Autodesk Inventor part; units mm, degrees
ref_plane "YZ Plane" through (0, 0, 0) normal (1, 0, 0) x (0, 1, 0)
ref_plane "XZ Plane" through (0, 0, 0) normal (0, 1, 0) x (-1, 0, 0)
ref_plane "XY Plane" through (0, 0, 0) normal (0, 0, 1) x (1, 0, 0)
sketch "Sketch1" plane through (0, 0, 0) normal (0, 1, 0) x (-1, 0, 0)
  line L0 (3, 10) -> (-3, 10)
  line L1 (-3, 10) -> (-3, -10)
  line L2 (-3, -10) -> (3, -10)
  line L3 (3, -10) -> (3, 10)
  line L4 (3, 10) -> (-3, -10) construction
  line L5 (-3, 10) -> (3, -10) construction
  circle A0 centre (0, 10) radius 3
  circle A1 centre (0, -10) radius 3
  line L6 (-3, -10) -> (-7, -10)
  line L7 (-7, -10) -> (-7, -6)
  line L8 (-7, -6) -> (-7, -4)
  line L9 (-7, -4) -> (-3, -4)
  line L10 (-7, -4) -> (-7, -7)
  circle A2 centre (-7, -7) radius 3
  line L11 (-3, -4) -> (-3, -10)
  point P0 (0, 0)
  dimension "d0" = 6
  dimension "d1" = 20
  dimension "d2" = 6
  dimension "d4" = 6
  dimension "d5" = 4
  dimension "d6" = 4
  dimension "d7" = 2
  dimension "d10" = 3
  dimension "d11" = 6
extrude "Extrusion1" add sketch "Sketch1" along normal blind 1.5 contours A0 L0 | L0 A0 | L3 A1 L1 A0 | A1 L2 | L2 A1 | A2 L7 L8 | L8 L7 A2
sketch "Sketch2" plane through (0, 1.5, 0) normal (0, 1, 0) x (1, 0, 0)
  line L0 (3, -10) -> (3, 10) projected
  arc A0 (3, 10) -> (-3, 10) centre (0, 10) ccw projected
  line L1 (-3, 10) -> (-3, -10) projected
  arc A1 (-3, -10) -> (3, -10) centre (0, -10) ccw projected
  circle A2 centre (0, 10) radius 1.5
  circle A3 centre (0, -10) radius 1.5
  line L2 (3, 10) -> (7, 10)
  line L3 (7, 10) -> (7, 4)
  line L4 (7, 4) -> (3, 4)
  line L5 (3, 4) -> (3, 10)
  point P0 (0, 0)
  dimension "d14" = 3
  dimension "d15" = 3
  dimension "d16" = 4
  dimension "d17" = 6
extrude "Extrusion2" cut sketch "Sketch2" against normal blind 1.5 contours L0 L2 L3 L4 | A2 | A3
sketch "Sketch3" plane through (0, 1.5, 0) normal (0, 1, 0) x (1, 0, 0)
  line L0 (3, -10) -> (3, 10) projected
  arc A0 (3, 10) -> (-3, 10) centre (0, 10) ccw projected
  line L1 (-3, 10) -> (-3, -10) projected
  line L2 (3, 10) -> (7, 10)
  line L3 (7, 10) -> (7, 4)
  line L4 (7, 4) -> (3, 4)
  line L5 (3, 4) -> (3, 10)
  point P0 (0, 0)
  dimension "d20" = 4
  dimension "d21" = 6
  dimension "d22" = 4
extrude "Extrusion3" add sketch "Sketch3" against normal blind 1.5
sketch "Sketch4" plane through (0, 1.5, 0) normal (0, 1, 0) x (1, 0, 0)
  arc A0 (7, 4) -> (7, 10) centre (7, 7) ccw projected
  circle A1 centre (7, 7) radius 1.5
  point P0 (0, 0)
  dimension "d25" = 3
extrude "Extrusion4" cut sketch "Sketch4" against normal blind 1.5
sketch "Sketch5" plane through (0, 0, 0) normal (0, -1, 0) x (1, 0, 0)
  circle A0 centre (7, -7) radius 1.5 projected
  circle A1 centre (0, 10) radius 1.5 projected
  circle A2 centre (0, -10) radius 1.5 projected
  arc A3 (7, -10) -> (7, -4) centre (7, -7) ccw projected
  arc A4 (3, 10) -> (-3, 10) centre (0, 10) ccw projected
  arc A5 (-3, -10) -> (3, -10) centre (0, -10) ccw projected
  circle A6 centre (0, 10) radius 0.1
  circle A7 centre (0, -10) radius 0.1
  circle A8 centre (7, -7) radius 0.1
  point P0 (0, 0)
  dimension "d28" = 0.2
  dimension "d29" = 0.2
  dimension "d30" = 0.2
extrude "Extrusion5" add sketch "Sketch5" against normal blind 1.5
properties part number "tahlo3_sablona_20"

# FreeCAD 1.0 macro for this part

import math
import FreeCAD as App
import Part
import Sketcher
from FreeCAD import Vector

doc = App.newDocument("Part")
body = doc.addObject("PartDesign::Body", "Body")
body.AllowCompound = True

# Sketch on XZ plane
sketch1 = body.newObject("Sketcher::SketchObject", "Sketch")
sketch1.AttachmentSupport = (doc.getObject("XZ_Plane"), [""])
sketch1.MapMode = "FlatFace"
sketch1.addGeometry([
    Part.LineSegment(Vector(-3, -10, 0), Vector(-3, 10, 0)),  # 0
    Part.ArcOfCircle(Part.Circle(Vector(0, 10, 0), Vector(0, 0, 1), 3), math.radians(0), math.radians(180)),  # 1
    Part.LineSegment(Vector(3, 10, 0), Vector(3, -10, 0)),  # 2
    Part.ArcOfCircle(Part.Circle(Vector(0, -10, 0), Vector(0, 0, 1), 3), math.radians(180), math.radians(360)),  # 3
    Part.Circle(Vector(7, -7, 0), Vector(0, 0, 1), 3),  # 4
], False)
sketch1.addConstraint([
    Sketcher.Constraint("Tangent", 0, 2, 1, 2),
    Sketcher.Constraint("Tangent", 1, 1, 2, 1),
    Sketcher.Constraint("Tangent", 2, 2, 3, 2),
    Sketcher.Constraint("Tangent", 3, 1, 0, 1),
    Sketcher.Constraint("Vertical", 0),
    Sketcher.Constraint("Vertical", 2),
    Sketcher.Constraint("Equal", 3, 4),
    Sketcher.Constraint("Symmetric", 1, 3, 3, 3, -1, 1),
    Sketcher.Constraint("Diameter", 4, 6.0),
    Sketcher.Constraint("DistanceY", 0, 1, 0, 2, 20.0),
    Sketcher.Constraint("DistanceY", 3, 3, 4, 3, 3.0),
    Sketcher.Constraint("DistanceX", 1, 1, 4, 3, 4.0),
])
pad1 = body.newObject("PartDesign::Pad", "Pad")
pad1.Profile = sketch1
pad1.Length = 1.5
pad1.Reversed = True

# Sketch on XZ plane
sketch2 = body.newObject("Sketcher::SketchObject", "Sketch001")
sketch2.AttachmentSupport = (doc.getObject("XZ_Plane"), [""])
sketch2.MapMode = "FlatFace"
sketch2.AttachmentOffset = App.Placement(Vector(0, 0, -1.5), App.Rotation())
sketch2.addGeometry([
    Part.LineSegment(Vector(3, -10, 0), Vector(3, -4, 0)),  # 0
    Part.LineSegment(Vector(3, -4, 0), Vector(7, -4, 0)),  # 1
    Part.LineSegment(Vector(7, -4, 0), Vector(7, -10, 0)),  # 2
    Part.LineSegment(Vector(7, -10, 0), Vector(3, -10, 0)),  # 3
    Part.Circle(Vector(0, -10, 0), Vector(0, 0, 1), 1.5),  # 4
    Part.Circle(Vector(0, 10, 0), Vector(0, 0, 1), 1.5),  # 5
], False)
sketch2.addConstraint([
    Sketcher.Constraint("Coincident", 0, 2, 1, 1),
    Sketcher.Constraint("Coincident", 1, 2, 2, 1),
    Sketcher.Constraint("Coincident", 2, 2, 3, 1),
    Sketcher.Constraint("Coincident", 3, 2, 0, 1),
    Sketcher.Constraint("Vertical", 0),
    Sketcher.Constraint("Horizontal", 1),
    Sketcher.Constraint("Vertical", 2),
    Sketcher.Constraint("Horizontal", 3),
    Sketcher.Constraint("Equal", 4, 5),
    Sketcher.Constraint("Symmetric", 4, 3, 5, 3, -1, 1),
    Sketcher.Constraint("PointOnObject", 4, 3, -2),
    Sketcher.Constraint("Horizontal", 4, 3, 2, 2),
    Sketcher.Constraint("Diameter", 4, 3.0),
    Sketcher.Constraint("DistanceX", 1, 1, 1, 2, 4.0),
    Sketcher.Constraint("DistanceY", 0, 1, 0, 2, 6.0),
    Sketcher.Constraint("DistanceX", -1, 1, 0, 2, 3.0),
    Sketcher.Constraint("DistanceY", 0, 2, -1, 1, 4.0),
])
pocket1 = body.newObject("PartDesign::Pocket", "Pocket")
pocket1.Profile = sketch2
pocket1.Length = 1.5
pocket1.Reversed = True

# Sketch on XZ plane
sketch3 = body.newObject("Sketcher::SketchObject", "Sketch002")
sketch3.AttachmentSupport = (doc.getObject("XZ_Plane"), [""])
sketch3.MapMode = "FlatFace"
sketch3.AttachmentOffset = App.Placement(Vector(0, 0, -1.5), App.Rotation())
sketch3.addGeometry([
    Part.LineSegment(Vector(3, -10, 0), Vector(3, -4, 0)),
    Part.LineSegment(Vector(3, -4, 0), Vector(7, -4, 0)),
    Part.LineSegment(Vector(7, -4, 0), Vector(7, -10, 0)),
    Part.LineSegment(Vector(7, -10, 0), Vector(3, -10, 0)),
], False)
sketch3.addConstraint([
    Sketcher.Constraint("Coincident", 0, 2, 1, 1),
    Sketcher.Constraint("Coincident", 1, 2, 2, 1),
    Sketcher.Constraint("Coincident", 2, 2, 3, 1),
    Sketcher.Constraint("Coincident", 3, 2, 0, 1),
    Sketcher.Constraint("Vertical", 0),
    Sketcher.Constraint("Horizontal", 1),
    Sketcher.Constraint("Vertical", 2),
    Sketcher.Constraint("Horizontal", 3),
    Sketcher.Constraint("DistanceX", 1, 1, 1, 2, 4.0),
    Sketcher.Constraint("DistanceY", 0, 1, 0, 2, 6.0),
    Sketcher.Constraint("DistanceY", 0, 2, -1, 1, 4.0),
    Sketcher.Constraint("DistanceX", -1, 1, 0, 2, 3.0),
])
pad2 = body.newObject("PartDesign::Pad", "Pad001")
pad2.Profile = sketch3
pad2.Length = 1.5

# Sketch on XZ plane
sketch4 = body.newObject("Sketcher::SketchObject", "Sketch003")
sketch4.AttachmentSupport = (doc.getObject("XZ_Plane"), [""])
sketch4.MapMode = "FlatFace"
sketch4.AttachmentOffset = App.Placement(Vector(0, 0, -1.5), App.Rotation())
sketch4.addGeometry(Part.Circle(Vector(7, -7, 0), Vector(0, 0, 1), 1.5), False)
sketch4.addConstraint([
    Sketcher.Constraint("Diameter", 0, 3.0),
    Sketcher.Constraint("DistanceX", -1, 1, 0, 3, 7.0),
    Sketcher.Constraint("DistanceY", 0, 3, -1, 1, 7.0),
])
pocket2 = body.newObject("PartDesign::Pocket", "Pocket001")
pocket2.Profile = sketch4
pocket2.Length = 1.5
pocket2.Reversed = True

# Sketch on XZ plane
sketch5 = body.newObject("Sketcher::SketchObject", "Sketch004")
sketch5.AttachmentSupport = (doc.getObject("XZ_Plane"), [""])
sketch5.MapMode = "FlatFace"
sketch5.addGeometry([
    Part.Circle(Vector(7, -7, 0), Vector(0, 0, 1), 1.5),  # 0
    Part.Circle(Vector(7, -7, 0), Vector(0, 0, 1), 0.1),  # 1
    Part.Circle(Vector(0, 10, 0), Vector(0, 0, 1), 1.5),  # 2
    Part.Circle(Vector(0, 10, 0), Vector(0, 0, 1), 0.1),  # 3
    Part.Circle(Vector(0, -10, 0), Vector(0, 0, 1), 1.5),  # 4
    Part.Circle(Vector(0, -10, 0), Vector(0, 0, 1), 0.1),  # 5
], False)
sketch5.addConstraint([
    Sketcher.Constraint("Coincident", 1, 3, 0, 3),
    Sketcher.Constraint("Coincident", 3, 3, 2, 3),
    Sketcher.Constraint("Coincident", 5, 3, 4, 3),
    Sketcher.Constraint("Equal", 0, 2),
    Sketcher.Constraint("Equal", 1, 3),
    Sketcher.Constraint("Equal", 2, 4),
    Sketcher.Constraint("Equal", 3, 5),
    Sketcher.Constraint("Symmetric", 2, 3, 4, 3, -1, 1),
    Sketcher.Constraint("PointOnObject", 2, 3, -2),
    Sketcher.Constraint("Diameter", 1, 0.2),
    Sketcher.Constraint("Diameter", 0, 3.0),
    Sketcher.Constraint("DistanceX", -1, 1, 0, 3, 7.0),
    Sketcher.Constraint("DistanceY", 0, 3, -1, 1, 7.0),
    Sketcher.Constraint("DistanceY", -1, 1, 2, 3, 10.0),
])
pad3 = body.newObject("PartDesign::Pad", "Pad002")
pad3.Profile = sketch5
pad3.Length = 1.5
pad3.Reversed = True

doc.recompute()
